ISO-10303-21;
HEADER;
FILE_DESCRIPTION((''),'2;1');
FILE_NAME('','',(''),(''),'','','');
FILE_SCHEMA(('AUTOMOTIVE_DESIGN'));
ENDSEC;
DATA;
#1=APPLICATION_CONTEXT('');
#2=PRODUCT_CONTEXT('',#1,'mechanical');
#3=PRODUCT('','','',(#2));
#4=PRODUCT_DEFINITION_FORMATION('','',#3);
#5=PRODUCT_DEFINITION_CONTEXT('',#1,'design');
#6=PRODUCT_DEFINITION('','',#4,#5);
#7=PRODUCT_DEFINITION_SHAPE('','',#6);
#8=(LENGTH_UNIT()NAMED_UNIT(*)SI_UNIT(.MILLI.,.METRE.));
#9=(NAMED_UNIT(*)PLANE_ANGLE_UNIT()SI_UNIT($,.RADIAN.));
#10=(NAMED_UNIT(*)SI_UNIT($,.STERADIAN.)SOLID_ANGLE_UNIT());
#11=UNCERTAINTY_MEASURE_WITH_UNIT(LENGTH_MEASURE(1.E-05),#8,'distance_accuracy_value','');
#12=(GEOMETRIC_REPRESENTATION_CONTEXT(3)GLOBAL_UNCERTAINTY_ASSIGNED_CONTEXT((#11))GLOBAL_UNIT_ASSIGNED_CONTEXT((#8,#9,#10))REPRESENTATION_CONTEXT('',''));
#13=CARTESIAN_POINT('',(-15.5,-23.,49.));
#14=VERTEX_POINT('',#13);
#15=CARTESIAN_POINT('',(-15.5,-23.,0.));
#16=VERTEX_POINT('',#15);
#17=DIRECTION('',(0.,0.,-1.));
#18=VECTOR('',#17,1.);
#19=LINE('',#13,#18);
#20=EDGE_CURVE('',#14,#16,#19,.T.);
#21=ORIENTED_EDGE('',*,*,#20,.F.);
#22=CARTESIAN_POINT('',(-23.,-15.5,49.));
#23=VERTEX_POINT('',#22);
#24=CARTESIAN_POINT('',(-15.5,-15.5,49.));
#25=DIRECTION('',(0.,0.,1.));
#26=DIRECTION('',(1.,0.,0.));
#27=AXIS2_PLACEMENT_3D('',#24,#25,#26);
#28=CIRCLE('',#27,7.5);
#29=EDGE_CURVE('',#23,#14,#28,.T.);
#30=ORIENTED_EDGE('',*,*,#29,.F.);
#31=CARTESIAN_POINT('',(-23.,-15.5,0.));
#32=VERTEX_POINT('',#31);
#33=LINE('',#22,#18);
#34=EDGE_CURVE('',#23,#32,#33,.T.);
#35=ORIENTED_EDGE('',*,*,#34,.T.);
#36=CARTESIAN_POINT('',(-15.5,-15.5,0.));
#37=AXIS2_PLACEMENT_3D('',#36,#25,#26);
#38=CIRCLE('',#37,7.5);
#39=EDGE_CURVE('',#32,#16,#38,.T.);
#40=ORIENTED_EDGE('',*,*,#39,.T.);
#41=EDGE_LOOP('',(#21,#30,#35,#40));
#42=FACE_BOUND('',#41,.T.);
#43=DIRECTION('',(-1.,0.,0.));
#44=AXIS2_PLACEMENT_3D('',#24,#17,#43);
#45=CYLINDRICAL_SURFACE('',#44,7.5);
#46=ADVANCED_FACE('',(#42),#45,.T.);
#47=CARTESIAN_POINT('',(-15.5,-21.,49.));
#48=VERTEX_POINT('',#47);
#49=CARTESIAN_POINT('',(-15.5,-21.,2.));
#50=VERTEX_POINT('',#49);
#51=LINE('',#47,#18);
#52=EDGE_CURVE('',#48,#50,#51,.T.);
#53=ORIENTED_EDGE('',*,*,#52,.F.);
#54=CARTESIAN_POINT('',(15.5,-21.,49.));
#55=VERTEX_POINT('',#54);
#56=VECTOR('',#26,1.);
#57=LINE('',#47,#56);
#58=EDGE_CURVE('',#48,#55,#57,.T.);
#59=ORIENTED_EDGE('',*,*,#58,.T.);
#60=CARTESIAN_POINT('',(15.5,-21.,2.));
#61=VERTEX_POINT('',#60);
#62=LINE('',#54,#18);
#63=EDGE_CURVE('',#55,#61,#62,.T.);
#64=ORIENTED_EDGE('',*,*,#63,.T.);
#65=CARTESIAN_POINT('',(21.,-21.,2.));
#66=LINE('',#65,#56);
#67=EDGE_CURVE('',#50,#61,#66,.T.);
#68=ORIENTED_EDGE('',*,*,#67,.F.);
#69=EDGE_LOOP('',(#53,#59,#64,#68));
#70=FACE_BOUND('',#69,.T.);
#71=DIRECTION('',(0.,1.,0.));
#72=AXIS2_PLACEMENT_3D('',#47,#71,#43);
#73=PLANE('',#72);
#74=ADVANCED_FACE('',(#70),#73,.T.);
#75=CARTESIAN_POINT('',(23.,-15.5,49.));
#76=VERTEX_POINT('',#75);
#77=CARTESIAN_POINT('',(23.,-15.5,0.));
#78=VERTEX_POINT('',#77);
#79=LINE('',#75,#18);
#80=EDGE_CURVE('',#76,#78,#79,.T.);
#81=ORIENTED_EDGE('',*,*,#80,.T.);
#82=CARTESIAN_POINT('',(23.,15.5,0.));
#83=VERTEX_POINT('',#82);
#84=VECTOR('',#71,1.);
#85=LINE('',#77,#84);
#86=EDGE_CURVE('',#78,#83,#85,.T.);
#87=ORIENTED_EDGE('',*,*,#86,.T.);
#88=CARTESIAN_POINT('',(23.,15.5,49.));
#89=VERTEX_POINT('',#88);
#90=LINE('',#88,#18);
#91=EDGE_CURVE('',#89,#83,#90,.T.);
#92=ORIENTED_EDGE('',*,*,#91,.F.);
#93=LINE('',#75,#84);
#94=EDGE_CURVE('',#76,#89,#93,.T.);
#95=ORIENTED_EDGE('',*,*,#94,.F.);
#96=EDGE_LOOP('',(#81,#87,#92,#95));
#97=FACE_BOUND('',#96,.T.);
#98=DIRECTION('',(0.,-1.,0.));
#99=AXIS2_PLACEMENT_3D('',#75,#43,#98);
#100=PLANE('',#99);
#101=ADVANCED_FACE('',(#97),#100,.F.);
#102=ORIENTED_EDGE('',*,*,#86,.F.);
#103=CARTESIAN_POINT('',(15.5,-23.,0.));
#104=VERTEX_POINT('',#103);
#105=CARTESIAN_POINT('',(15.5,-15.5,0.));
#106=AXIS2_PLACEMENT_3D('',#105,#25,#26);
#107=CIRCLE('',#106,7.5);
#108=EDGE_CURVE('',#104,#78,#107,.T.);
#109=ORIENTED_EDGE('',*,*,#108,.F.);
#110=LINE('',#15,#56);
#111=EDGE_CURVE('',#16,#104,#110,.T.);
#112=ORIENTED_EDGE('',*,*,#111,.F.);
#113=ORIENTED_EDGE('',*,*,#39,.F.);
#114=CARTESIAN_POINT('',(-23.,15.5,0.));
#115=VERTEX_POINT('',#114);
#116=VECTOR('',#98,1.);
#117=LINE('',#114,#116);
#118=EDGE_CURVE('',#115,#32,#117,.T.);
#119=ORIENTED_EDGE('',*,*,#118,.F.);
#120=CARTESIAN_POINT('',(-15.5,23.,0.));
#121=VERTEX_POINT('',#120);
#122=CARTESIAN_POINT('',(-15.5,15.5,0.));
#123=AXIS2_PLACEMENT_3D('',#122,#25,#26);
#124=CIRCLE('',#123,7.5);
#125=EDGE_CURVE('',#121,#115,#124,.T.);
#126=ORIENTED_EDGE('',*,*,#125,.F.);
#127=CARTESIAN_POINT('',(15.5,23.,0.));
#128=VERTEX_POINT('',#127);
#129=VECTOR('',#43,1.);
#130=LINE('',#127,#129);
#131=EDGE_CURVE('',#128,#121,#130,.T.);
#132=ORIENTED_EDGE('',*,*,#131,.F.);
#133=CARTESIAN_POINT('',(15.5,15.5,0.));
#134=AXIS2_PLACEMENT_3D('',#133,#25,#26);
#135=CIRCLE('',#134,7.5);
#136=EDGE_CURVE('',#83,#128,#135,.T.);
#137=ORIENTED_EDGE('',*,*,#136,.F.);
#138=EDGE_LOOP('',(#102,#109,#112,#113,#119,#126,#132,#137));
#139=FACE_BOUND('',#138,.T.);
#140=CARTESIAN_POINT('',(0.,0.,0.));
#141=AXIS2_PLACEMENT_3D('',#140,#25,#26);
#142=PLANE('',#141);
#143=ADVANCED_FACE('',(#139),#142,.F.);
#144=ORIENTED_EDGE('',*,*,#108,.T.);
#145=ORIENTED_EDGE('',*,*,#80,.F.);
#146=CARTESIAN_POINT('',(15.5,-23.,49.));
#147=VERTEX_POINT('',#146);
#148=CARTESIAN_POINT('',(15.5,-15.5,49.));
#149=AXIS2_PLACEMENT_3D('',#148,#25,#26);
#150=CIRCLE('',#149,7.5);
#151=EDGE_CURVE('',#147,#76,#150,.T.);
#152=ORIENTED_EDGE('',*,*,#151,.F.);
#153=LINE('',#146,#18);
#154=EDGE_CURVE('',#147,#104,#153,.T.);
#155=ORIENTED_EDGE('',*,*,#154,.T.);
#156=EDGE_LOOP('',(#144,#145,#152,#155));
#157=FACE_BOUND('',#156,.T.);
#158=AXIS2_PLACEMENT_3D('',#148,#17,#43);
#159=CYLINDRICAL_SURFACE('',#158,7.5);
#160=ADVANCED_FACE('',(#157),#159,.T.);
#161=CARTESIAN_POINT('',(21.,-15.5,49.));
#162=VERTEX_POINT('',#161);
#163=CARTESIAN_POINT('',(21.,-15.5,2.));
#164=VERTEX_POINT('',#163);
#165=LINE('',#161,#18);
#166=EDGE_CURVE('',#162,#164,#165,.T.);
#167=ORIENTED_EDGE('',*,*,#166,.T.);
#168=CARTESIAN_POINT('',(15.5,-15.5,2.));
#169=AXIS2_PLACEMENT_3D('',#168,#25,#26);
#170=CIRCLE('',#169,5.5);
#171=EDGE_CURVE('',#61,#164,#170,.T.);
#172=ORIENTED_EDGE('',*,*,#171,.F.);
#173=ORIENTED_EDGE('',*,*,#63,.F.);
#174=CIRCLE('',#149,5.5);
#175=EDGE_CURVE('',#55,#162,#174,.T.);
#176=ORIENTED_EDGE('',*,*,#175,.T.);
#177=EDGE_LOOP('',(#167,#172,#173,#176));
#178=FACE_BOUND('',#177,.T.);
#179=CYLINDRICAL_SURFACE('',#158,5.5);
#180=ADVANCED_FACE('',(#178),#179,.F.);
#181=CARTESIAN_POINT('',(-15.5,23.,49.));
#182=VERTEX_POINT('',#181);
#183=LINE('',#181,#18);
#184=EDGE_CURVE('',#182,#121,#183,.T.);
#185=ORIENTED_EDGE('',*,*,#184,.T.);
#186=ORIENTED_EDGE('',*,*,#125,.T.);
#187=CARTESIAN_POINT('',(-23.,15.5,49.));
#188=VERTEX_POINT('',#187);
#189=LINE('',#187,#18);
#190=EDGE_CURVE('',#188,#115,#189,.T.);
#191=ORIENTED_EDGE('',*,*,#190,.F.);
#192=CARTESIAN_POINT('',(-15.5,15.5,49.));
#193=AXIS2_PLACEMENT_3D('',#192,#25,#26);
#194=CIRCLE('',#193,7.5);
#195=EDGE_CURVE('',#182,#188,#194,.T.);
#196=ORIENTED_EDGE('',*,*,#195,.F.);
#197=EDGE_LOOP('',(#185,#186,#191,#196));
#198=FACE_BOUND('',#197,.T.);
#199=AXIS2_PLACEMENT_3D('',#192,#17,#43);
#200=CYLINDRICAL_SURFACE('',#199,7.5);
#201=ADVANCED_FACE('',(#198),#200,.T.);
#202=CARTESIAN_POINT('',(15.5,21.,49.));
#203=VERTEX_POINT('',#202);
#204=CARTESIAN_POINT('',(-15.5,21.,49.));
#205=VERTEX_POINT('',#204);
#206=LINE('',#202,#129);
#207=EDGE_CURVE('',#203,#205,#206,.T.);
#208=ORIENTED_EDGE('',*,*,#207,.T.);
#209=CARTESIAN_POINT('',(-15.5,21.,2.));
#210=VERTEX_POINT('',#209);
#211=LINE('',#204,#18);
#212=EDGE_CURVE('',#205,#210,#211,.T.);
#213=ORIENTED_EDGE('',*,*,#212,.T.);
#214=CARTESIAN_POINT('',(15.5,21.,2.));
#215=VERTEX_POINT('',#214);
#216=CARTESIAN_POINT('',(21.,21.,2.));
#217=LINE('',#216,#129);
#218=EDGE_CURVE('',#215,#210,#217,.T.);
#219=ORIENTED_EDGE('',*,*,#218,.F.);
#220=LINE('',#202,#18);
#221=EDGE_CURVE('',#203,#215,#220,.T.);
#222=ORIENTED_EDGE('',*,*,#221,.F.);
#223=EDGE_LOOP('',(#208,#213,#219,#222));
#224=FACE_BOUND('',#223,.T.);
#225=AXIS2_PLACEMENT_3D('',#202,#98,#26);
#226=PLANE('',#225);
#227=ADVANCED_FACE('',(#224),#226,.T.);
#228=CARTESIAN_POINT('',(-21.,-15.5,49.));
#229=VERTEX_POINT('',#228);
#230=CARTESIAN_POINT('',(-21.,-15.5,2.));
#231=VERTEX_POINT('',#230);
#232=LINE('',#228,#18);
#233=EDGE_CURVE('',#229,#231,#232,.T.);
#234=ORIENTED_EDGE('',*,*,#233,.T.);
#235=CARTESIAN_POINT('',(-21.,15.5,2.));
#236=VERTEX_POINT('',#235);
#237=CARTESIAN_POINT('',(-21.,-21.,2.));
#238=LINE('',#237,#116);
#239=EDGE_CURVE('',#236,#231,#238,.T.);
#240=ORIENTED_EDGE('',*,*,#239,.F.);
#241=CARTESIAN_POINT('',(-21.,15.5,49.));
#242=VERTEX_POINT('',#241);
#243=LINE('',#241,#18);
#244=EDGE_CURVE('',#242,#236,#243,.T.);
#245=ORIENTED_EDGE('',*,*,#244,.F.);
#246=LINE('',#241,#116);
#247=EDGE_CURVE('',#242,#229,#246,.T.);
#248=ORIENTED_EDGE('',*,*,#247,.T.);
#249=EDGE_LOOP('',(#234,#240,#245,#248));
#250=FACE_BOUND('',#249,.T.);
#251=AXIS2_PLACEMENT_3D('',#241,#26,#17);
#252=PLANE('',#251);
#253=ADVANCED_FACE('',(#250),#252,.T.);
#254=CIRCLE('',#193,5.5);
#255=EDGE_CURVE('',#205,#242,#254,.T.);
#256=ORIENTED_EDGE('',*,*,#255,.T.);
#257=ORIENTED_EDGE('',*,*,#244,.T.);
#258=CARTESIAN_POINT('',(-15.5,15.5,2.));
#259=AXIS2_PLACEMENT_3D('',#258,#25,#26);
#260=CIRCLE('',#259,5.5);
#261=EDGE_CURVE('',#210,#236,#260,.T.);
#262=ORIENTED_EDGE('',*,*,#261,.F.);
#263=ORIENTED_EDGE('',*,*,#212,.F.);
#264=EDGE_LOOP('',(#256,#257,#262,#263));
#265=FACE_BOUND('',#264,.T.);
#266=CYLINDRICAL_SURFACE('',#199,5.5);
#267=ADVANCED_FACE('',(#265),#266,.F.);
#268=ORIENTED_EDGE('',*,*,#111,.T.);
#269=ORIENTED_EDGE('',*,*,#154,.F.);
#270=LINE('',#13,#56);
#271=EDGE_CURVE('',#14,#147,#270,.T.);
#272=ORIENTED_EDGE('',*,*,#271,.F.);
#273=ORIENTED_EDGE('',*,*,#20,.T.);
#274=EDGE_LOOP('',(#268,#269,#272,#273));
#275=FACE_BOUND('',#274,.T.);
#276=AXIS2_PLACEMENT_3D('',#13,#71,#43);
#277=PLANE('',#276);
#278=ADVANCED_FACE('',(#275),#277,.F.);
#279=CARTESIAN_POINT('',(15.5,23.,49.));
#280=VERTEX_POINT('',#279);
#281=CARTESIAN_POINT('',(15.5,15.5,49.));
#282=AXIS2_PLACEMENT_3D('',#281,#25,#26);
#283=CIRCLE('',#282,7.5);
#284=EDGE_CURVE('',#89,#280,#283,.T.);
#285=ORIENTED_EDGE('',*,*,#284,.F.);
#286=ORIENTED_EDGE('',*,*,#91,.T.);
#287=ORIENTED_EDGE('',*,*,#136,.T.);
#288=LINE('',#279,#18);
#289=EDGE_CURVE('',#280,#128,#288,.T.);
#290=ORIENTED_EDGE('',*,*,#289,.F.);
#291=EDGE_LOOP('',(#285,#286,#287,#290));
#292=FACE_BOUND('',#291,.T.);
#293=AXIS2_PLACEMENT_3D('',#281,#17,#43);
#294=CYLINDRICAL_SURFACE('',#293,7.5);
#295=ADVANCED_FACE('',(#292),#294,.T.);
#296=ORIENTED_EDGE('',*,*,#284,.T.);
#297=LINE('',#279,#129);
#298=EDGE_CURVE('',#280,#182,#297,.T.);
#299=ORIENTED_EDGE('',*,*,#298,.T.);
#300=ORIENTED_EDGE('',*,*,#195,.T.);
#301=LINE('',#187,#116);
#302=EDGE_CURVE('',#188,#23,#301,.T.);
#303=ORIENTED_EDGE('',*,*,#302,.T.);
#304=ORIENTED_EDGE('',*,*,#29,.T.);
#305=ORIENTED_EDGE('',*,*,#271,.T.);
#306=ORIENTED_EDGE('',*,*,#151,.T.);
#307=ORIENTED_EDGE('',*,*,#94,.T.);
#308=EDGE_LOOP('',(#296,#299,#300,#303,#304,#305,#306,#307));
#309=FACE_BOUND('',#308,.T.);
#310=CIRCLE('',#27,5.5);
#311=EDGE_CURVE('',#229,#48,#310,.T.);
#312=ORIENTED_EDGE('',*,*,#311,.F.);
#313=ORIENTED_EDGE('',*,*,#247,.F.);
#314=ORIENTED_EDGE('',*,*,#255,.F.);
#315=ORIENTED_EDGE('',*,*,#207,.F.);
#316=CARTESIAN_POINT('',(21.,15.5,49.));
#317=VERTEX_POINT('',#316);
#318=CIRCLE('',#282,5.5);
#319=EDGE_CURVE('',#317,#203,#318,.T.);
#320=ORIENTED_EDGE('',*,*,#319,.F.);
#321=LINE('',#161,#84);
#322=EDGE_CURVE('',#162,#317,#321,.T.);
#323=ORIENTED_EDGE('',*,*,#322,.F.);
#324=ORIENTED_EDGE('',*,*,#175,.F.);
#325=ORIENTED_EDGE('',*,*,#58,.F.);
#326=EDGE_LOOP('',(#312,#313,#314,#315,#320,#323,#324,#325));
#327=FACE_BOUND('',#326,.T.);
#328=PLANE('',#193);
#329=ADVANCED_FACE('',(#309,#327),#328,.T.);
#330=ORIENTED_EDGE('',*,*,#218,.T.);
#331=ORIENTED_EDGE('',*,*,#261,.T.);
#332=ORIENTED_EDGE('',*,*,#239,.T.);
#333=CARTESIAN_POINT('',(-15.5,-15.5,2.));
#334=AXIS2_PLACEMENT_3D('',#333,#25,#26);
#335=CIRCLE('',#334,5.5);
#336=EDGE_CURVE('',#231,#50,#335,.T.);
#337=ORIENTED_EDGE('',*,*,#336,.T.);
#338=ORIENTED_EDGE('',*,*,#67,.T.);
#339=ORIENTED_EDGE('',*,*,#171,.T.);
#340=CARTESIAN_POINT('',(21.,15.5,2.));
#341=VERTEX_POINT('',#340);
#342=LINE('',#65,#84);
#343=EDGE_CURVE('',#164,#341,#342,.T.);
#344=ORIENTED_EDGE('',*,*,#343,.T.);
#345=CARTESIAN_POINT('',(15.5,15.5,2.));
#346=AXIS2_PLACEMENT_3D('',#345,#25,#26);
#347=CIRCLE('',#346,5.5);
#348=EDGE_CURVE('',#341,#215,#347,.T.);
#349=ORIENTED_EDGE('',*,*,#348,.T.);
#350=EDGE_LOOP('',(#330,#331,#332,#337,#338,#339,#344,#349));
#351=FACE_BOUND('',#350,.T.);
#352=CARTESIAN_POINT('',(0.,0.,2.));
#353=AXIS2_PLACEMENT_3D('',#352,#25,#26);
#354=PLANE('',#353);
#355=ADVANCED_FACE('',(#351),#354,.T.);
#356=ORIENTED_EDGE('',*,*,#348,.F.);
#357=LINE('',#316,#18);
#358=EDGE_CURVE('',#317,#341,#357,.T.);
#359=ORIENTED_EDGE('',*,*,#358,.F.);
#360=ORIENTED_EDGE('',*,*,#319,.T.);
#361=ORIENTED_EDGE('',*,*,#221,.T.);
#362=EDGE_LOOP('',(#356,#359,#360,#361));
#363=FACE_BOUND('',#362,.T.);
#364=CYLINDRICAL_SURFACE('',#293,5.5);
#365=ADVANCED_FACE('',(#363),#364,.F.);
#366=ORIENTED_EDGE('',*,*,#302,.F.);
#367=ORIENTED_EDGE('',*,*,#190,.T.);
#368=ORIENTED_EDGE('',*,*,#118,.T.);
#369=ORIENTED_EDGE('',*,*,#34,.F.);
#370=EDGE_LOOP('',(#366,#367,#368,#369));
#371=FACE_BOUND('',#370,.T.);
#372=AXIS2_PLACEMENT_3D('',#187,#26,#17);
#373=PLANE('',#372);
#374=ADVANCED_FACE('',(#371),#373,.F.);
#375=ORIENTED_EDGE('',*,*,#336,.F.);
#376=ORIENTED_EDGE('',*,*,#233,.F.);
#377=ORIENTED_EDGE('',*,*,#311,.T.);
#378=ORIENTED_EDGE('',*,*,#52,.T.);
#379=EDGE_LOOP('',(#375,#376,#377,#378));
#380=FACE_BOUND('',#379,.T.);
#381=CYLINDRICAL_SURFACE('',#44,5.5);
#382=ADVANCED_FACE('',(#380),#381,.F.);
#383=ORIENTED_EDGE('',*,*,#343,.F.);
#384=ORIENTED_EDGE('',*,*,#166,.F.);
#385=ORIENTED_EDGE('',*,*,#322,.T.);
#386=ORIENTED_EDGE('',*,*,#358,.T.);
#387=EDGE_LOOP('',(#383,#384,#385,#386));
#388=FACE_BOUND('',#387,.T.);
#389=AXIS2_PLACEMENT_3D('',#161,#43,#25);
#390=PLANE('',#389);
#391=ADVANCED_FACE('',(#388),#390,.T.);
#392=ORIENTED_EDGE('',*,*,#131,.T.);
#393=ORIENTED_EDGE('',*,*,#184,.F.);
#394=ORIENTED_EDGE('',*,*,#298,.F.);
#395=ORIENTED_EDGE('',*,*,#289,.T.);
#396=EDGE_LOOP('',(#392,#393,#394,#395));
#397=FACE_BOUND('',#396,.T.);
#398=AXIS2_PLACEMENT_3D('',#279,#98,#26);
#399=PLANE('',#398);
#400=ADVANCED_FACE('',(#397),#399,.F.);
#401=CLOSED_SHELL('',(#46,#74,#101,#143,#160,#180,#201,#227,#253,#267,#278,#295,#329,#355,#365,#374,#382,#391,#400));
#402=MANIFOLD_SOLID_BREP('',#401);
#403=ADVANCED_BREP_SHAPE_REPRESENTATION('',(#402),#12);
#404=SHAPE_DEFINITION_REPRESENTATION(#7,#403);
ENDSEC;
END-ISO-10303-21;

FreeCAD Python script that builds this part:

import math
import FreeCAD as App
import Part
import Sketcher

V = App.Vector
Q = App.Units.Quantity


def edges_at(feature, points):
    """Names of the edges that pass closest to the given points."""
    edges = feature.Shape.Edges
    near = lambda p: min(range(len(edges)), key=lambda i: edges[i].distToShape(Part.Vertex(*p))[0])
    return sorted({f"Edge{near(p) + 1}" for p in points})


def add_polygon(sketch, points):
    """Adds a closed chain of lines whose ends are joined by coincident constraints."""
    first, n = sketch.GeometryCount, len(points)
    for a, b in zip(points, points[1:] + points[:1]):
        sketch.addGeometry(Part.LineSegment(App.Vector(*a, 0), App.Vector(*b, 0)), False)
    for i in range(n):
        sketch.addConstraint(Sketcher.Constraint("Coincident", first + i, 2, first + (i + 1) % n, 1))

doc = App.newDocument("Part")
body = doc.addObject("PartDesign::Body", "Body")

sketch1 = doc.addObject("Sketcher::SketchObject", "Sketch")
body.addObject(sketch1)
sketch1.AttachmentSupport = (doc.XY_Plane, [""])
sketch1.MapMode = "FlatFace"
add_polygon(sketch1, [(-21, 21), (-21, -21), (21, -21), (21, 21)])
sketch1.addConstraint(Sketcher.Constraint("Vertical", 0))
sketch1.addConstraint(Sketcher.Constraint("Horizontal", 1))
sketch1.addConstraint(Sketcher.Constraint("Vertical", 2))
sketch1.addConstraint(Sketcher.Constraint("Horizontal", 3))
sketch1.addConstraint(Sketcher.Constraint("Symmetric", 0, 2, 2, 2, -1, 1))
sketch1.addConstraint(Sketcher.Constraint("Equal", 3, 0))
sketch1.addConstraint(Sketcher.Constraint("DistanceX", 1, 1, 1, 2, Q("42 mm")))
pad1 = doc.addObject("PartDesign::Pad", "Pad")
body.addObject(pad1)
pad1.Profile = sketch1
pad1.Length = 2
doc.recompute()

fillet = doc.addObject("PartDesign::Fillet", "Fillet")
body.addObject(fillet)
fillet.Base = (pad1, edges_at(pad1, [
    (-21, 21, 1),
    (21, 21, 1),
    (21, -21, 1),
    (-21, -21, 1),
]))
fillet.Radius = 5.5

sketch2 = doc.addObject("Sketcher::SketchObject", "Sketch001")
body.addObject(sketch2)
sketch2.AttachmentSupport = (doc.XY_Plane, [""])
sketch2.MapMode = "FlatFace"
sketch2.addGeometry(Part.LineSegment(V(-23, 15.5, 0), V(-23, -15.5, 0)), False)
sketch2.addGeometry(Part.ArcOfCircle(Part.Circle(V(-15.5, -15.5, 0), V(0, 0, 1), 7.5), math.radians(180), math.radians(270)), False)
sketch2.addGeometry(Part.LineSegment(V(-15.5, -23, 0), V(15.5, -23, 0)), False)
sketch2.addGeometry(Part.ArcOfCircle(Part.Circle(V(15.5, -15.5, 0), V(0, 0, 1), 7.5), math.radians(-90), math.radians(0)), False)
sketch2.addGeometry(Part.LineSegment(V(23, -15.5, 0), V(23, 15.5, 0)), False)
sketch2.addGeometry(Part.ArcOfCircle(Part.Circle(V(15.5, 15.5, 0), V(0, 0, 1), 7.5), math.radians(0), math.radians(90)), False)
sketch2.addGeometry(Part.LineSegment(V(15.5, 23, 0), V(-15.5, 23, 0)), False)
sketch2.addGeometry(Part.ArcOfCircle(Part.Circle(V(-15.5, 15.5, 0), V(0, 0, 1), 7.5), math.radians(90), math.radians(180)), False)
sketch2.addGeometry(Part.LineSegment(V(-21, -15.5, 0), V(-21, 15.5, 0)), False)
sketch2.addGeometry(Part.ArcOfCircle(Part.Circle(V(-15.5, 15.5, 0), V(0, 0, 1), 5.5), math.radians(90), math.radians(180)), False)
sketch2.addGeometry(Part.LineSegment(V(-15.5, 21, 0), V(15.5, 21, 0)), False)
sketch2.addGeometry(Part.ArcOfCircle(Part.Circle(V(15.5, 15.5, 0), V(0, 0, 1), 5.5), math.radians(0), math.radians(90)), False)
sketch2.addGeometry(Part.LineSegment(V(21, 15.5, 0), V(21, -15.5, 0)), False)
sketch2.addGeometry(Part.ArcOfCircle(Part.Circle(V(15.5, -15.5, 0), V(0, 0, 1), 5.5), math.radians(-90), math.radians(0)), False)
sketch2.addGeometry(Part.LineSegment(V(15.5, -21, 0), V(-15.5, -21, 0)), False)
sketch2.addGeometry(Part.ArcOfCircle(Part.Circle(V(-15.5, -15.5, 0), V(0, 0, 1), 5.5), math.radians(180), math.radians(270)), False)
sketch2.addConstraint(Sketcher.Constraint("Tangent", 0, 2, 1, 1))
sketch2.addConstraint(Sketcher.Constraint("Tangent", 1, 2, 2, 1))
sketch2.addConstraint(Sketcher.Constraint("Tangent", 2, 2, 3, 1))
sketch2.addConstraint(Sketcher.Constraint("Tangent", 3, 2, 4, 1))
sketch2.addConstraint(Sketcher.Constraint("Tangent", 4, 2, 5, 1))
sketch2.addConstraint(Sketcher.Constraint("Tangent", 5, 2, 6, 1))
sketch2.addConstraint(Sketcher.Constraint("Tangent", 6, 2, 7, 1))
sketch2.addConstraint(Sketcher.Constraint("Tangent", 7, 2, 0, 1))
sketch2.addConstraint(Sketcher.Constraint("Tangent", 8, 2, 9, 2))
sketch2.addConstraint(Sketcher.Constraint("Tangent", 9, 1, 10, 1))
sketch2.addConstraint(Sketcher.Constraint("Tangent", 10, 2, 11, 2))
sketch2.addConstraint(Sketcher.Constraint("Tangent", 11, 1, 12, 1))
sketch2.addConstraint(Sketcher.Constraint("Tangent", 12, 2, 13, 2))
sketch2.addConstraint(Sketcher.Constraint("Tangent", 13, 1, 14, 1))
sketch2.addConstraint(Sketcher.Constraint("Tangent", 14, 2, 15, 2))
sketch2.addConstraint(Sketcher.Constraint("Tangent", 15, 1, 8, 1))
sketch2.addConstraint(Sketcher.Constraint("Vertical", 0))
sketch2.addConstraint(Sketcher.Constraint("Horizontal", 2))
sketch2.addConstraint(Sketcher.Constraint("Vertical", 4))
sketch2.addConstraint(Sketcher.Constraint("Horizontal", 6))
sketch2.addConstraint(Sketcher.Constraint("Vertical", 8))
sketch2.addConstraint(Sketcher.Constraint("Horizontal", 10))
sketch2.addConstraint(Sketcher.Constraint("Vertical", 12))
sketch2.addConstraint(Sketcher.Constraint("Horizontal", 14))
sketch2.addConstraint(Sketcher.Constraint("Coincident", 9, 3, 7, 3))
sketch2.addConstraint(Sketcher.Constraint("Coincident", 11, 3, 5, 3))
sketch2.addConstraint(Sketcher.Constraint("Coincident", 13, 3, 3, 3))
sketch2.addConstraint(Sketcher.Constraint("Equal", 1, 3))
sketch2.addConstraint(Sketcher.Constraint("Equal", 3, 5))
sketch2.addConstraint(Sketcher.Constraint("Equal", 5, 7))
sketch2.addConstraint(Sketcher.Constraint("Equal", 13, 15))
sketch2.addConstraint(Sketcher.Constraint("Symmetric", 1, 3, 5, 3, -1, 1))
sketch2.addConstraint(Sketcher.Constraint("Equal", 14, 0))
sketch2.addConstraint(Sketcher.Constraint("Radius", 1, Q("7.5 mm")))
sketch2.addConstraint(Sketcher.Constraint("Radius", 9, Q("5.5 mm")))
sketch2.addConstraint(Sketcher.Constraint("DistanceX", 2, 1, 2, 2, Q("31 mm")))
pad2 = doc.addObject("PartDesign::Pad", "Pad001")
body.addObject(pad2)
pad2.Profile = sketch2
pad2.Length = 49

doc.recompute()
